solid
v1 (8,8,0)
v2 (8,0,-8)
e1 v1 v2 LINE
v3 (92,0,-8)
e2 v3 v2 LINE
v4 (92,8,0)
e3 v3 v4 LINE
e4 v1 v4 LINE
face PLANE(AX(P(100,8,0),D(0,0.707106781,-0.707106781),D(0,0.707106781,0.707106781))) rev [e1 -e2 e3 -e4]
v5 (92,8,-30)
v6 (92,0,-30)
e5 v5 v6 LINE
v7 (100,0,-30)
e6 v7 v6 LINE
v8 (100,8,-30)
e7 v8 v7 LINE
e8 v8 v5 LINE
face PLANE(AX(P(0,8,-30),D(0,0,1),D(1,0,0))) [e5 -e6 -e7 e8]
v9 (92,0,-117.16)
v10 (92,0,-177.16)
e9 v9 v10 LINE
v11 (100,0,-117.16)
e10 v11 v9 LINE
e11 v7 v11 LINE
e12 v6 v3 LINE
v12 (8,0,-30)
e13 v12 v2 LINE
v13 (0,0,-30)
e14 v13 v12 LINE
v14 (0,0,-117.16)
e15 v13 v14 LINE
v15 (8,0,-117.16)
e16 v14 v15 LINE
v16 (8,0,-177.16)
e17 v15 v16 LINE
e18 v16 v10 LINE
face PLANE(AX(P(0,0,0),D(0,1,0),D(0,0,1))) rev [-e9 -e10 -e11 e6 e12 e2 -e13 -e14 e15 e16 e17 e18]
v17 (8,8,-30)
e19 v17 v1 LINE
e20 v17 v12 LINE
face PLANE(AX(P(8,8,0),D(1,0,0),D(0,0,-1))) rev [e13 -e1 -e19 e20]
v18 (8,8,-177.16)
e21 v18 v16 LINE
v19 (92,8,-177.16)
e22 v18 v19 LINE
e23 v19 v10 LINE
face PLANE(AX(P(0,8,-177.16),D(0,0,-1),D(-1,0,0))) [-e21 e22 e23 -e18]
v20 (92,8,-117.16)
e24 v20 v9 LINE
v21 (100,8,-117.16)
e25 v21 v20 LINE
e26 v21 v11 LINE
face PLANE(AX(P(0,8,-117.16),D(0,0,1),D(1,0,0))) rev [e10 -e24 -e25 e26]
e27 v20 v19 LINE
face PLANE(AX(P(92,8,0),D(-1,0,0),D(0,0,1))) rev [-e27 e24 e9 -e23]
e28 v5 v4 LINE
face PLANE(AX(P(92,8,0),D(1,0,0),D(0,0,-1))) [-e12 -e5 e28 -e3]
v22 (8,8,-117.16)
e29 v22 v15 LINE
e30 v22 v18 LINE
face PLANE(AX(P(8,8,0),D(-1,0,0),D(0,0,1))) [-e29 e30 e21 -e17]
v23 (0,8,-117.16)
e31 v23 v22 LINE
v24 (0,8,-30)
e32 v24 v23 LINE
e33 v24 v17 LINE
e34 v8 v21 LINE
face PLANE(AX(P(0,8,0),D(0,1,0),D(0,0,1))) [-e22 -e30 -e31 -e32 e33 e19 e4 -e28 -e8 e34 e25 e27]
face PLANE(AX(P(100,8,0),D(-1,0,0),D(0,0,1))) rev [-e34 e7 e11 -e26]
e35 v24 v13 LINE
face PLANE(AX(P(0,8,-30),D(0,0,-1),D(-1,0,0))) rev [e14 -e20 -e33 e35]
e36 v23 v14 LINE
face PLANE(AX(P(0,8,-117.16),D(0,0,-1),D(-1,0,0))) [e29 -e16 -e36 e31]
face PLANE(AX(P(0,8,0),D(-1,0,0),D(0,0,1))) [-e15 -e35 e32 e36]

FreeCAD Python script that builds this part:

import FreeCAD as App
import Part
import Sketcher

V = App.Vector
Q = App.Units.Quantity


def add_polygon(sketch, points):
    """Adds a closed chain of lines whose ends are joined by coincident constraints."""
    first, n = sketch.GeometryCount, len(points)
    for a, b in zip(points, points[1:] + points[:1]):
        sketch.addGeometry(Part.LineSegment(App.Vector(*a, 0), App.Vector(*b, 0)), False)
    for i in range(n):
        sketch.addConstraint(Sketcher.Constraint("Coincident", first + i, 2, first + (i + 1) % n, 1))

doc = App.newDocument("Part")
body = doc.addObject("PartDesign::Body", "Body")

# Sketch on XZ plane
sketch1 = body.newObject("Sketcher::SketchObject", "Sketch")
sketch1.AttachmentSupport = (doc.getObject("XZ_Plane"), [""])
sketch1.MapMode = "FlatFace"
add_polygon(sketch1, [(8, -117.16), (0, -117.16), (0, -30), (8, -30), (8, 0), (92, 0), (92, -30), (100, -30), (100, -117.16), (92, -117.16), (92, -177.16), (8, -177.16)])  # lines 0-11
sketch1.addConstraint([
    Sketcher.Constraint("Horizontal", 0),
    Sketcher.Constraint("Vertical", 1),
    Sketcher.Constraint("Horizontal", 2),
    Sketcher.Constraint("Vertical", 3),
    Sketcher.Constraint("Horizontal", 4),
    Sketcher.Constraint("Vertical", 5),
    Sketcher.Constraint("Horizontal", 6),
    Sketcher.Constraint("Vertical", 7),
    Sketcher.Constraint("Horizontal", 8),
    Sketcher.Constraint("Vertical", 9),
    Sketcher.Constraint("Horizontal", 10),
    Sketcher.Constraint("Vertical", 11),
    Sketcher.Constraint("PointOnObject", 0, 2, -2),
    Sketcher.Constraint("PointOnObject", 3, 2, -1),
    Sketcher.Constraint("Horizontal", 2, 2, 5, 2),
    Sketcher.Constraint("Horizontal", 0, 2, 7, 2),
    Sketcher.Constraint("Vertical", 5, 2, 8, 2),
    Sketcher.Constraint("Vertical", 3, 2, 10, 2),
    Sketcher.Constraint("Equal", 2, 6),
    Sketcher.Constraint("DistanceX", 0, 2, 0, 1, Q("8 mm")),
    Sketcher.Constraint("DistanceX", 4, 1, 4, 2, Q("84 mm")),
    Sketcher.Constraint("DistanceY", 3, 1, 3, 2, Q("30 mm")),
    Sketcher.Constraint("DistanceY", 9, 2, 9, 1, Q("60 mm")),
    Sketcher.Constraint("DistanceY", 1, 1, 1, 2, Q("87.16 mm")),
])
pad1 = body.newObject("PartDesign::Pad", "Pad")
pad1.Profile = sketch1
pad1.Length = 8
pad1.Reversed = True

# Sketch on YZ plane
sketch2 = body.newObject("Sketcher::SketchObject", "Sketch001")
sketch2.AttachmentSupport = (doc.getObject("YZ_Plane"), [""])
sketch2.MapMode = "FlatFace"
sketch2.AttachmentOffset = App.Placement(V(0, 0, 8), App.Rotation())
add_polygon(sketch2, [(8, 0), (0, -8), (0, 0)])  # lines 0-2
sketch2.addConstraint([
    Sketcher.Constraint("Vertical", 1),
    Sketcher.Constraint("Horizontal", 2),
    Sketcher.Constraint("Coincident", 1, 2, -1, 1),
    Sketcher.Constraint("Equal", 2, 1),
    Sketcher.Constraint("DistanceX", 2, 1, 2, 2, Q("8 mm")),
])
pocket1 = body.newObject("PartDesign::Pocket", "Pocket")
pocket1.Profile = sketch2
pocket1.Type = "ThroughAll"
pocket1.Reversed = True

doc.recompute()
